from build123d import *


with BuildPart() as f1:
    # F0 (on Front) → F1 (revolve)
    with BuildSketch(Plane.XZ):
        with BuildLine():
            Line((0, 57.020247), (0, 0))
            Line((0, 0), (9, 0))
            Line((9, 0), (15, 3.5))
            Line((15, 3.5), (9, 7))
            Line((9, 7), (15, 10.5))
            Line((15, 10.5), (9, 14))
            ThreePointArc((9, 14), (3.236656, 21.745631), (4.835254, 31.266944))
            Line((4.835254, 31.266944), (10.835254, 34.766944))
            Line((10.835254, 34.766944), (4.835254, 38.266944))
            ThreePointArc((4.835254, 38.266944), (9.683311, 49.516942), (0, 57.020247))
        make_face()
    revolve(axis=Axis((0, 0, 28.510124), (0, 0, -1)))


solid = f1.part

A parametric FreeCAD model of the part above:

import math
import FreeCAD as App
import Part
import Sketcher
from FreeCAD import Vector

doc = App.newDocument("Part")
body = doc.addObject("PartDesign::Body", "Body")

sketch1 = doc.addObject("Sketcher::SketchObject", "Sketch")
body.addObject(sketch1)
sketch1.AttachmentSupport = (doc.XZ_Plane, [""])
sketch1.MapMode = "FlatFace"
sketch1.addGeometry([
    Part.LineSegment(Vector(0, 57, 0), Vector(0, 0, 0)),
    Part.LineSegment(Vector(0, 0, 0), Vector(9, 0, 0)),
    Part.LineSegment(Vector(9, 0, 0), Vector(15, 4, 0)),
    Part.LineSegment(Vector(15, 4, 0), Vector(9, 7, 0)),
    Part.LineSegment(Vector(9, 7, 0), Vector(15, 10, 0)),
    Part.LineSegment(Vector(15, 10, 0), Vector(9, 14, 0)),
    Part.ArcOfCircle(Part.Circle(Vector(15, 25, 0), Vector(0, 0, 1), 12), math.radians(147), math.radians(240)),
    Part.LineSegment(Vector(5, 31, 0), Vector(11, 35, 0)),
    Part.LineSegment(Vector(11, 35, 0), Vector(5, 38, 0)),
    Part.ArcOfCircle(Part.Circle(Vector(0, 47, 0), Vector(0, 0, 1), 10), math.radians(-61), math.radians(90)),
], False)
sketch1.addConstraint([
    Sketcher.Constraint("Coincident", 0, 2, 1, 1),
    Sketcher.Constraint("Coincident", 1, 2, 2, 1),
    Sketcher.Constraint("Coincident", 2, 2, 3, 1),
    Sketcher.Constraint("Coincident", 3, 2, 4, 1),
    Sketcher.Constraint("Coincident", 4, 2, 5, 1),
    Sketcher.Constraint("Tangent", 5, 2, 6, 2),
    Sketcher.Constraint("Coincident", 6, 1, 7, 1),
    Sketcher.Constraint("Coincident", 7, 2, 8, 1),
    Sketcher.Constraint("Coincident", 8, 2, 9, 1),
    Sketcher.Constraint("Coincident", 9, 2, 0, 1),
    Sketcher.Constraint("Vertical", 0),
    Sketcher.Constraint("Horizontal", 1),
    Sketcher.Constraint("Coincident", 0, 2, -1, 1),
    Sketcher.Constraint("PointOnObject", 9, 3, -2),
    Sketcher.Constraint("Parallel", 2, 4),
    Sketcher.Constraint("Parallel", 3, 5),
    Sketcher.Constraint("Parallel", 4, 7),
    Sketcher.Constraint("Parallel", 5, 8),
    Sketcher.Constraint("Vertical", 1, 2, 3, 2),
    Sketcher.Constraint("Vertical", 2, 2, 4, 2),
    Sketcher.Constraint("Vertical", 3, 2, 5, 2),
    Sketcher.Constraint("Vertical", 6, 1, 8, 2),
    Sketcher.Constraint("Equal", 2, 3),
    Sketcher.Constraint("Equal", 5, 7),
    Sketcher.Constraint("Radius", 9, 10.0),
    Sketcher.Constraint("DistanceX", 1, 1, 1, 2, 9.0),
    Sketcher.Constraint("DistanceX", -1, 1, 2, 2, 15.0),
    Sketcher.Constraint("DistanceY", -1, 1, 3, 2, 7.0),
    Sketcher.Constraint("Radius", 6, 12.308225),
    Sketcher.Constraint("DistanceY", 0, 2, 0, 1, 57.020247),
])
revolution = doc.addObject("PartDesign::Revolution", "Revolution")
body.addObject(revolution)
revolution.Profile = sketch1
revolution.ReferenceAxis = (sketch1, ["V_Axis"])
revolution.Angle = 360

doc.recompute()
